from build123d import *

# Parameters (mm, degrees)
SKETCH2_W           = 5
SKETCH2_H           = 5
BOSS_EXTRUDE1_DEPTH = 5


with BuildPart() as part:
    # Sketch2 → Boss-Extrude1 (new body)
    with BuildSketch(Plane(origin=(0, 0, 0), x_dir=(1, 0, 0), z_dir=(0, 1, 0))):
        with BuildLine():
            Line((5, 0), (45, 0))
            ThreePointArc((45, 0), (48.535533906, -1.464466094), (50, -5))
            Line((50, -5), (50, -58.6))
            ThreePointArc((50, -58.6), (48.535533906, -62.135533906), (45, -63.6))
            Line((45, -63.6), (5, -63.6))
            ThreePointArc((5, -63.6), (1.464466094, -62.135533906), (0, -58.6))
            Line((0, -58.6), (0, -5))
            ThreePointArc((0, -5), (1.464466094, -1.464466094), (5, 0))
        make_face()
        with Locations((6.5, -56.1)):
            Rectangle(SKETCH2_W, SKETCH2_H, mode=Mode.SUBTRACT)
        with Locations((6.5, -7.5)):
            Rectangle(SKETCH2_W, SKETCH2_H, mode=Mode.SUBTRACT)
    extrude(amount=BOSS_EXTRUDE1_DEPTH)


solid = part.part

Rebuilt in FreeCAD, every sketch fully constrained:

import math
import FreeCAD as App
import Part
import Sketcher

V = App.Vector
Q = App.Units.Quantity


def add_polygon(sketch, points):
    """Adds a closed chain of lines whose ends are joined by coincident constraints."""
    first, n = sketch.GeometryCount, len(points)
    for a, b in zip(points, points[1:] + points[:1]):
        sketch.addGeometry(Part.LineSegment(App.Vector(*a, 0), App.Vector(*b, 0)), False)
    for i in range(n):
        sketch.addConstraint(Sketcher.Constraint("Coincident", first + i, 2, first + (i + 1) % n, 1))

doc = App.newDocument("Part")
body = doc.addObject("PartDesign::Body", "Body")

# Sketch on XZ plane
sketch1 = body.newObject("Sketcher::SketchObject", "Sketch")
sketch1.AttachmentSupport = (doc.getObject("XZ_Plane"), [""])
sketch1.MapMode = "FlatFace"
sketch1.addGeometry(Part.LineSegment(V(45, 0, 0), V(5, 0, 0)), False)  # 0
sketch1.addGeometry(Part.ArcOfCircle(Part.Circle(V(5, 5, 0), V(0, 0, 1), 5), math.radians(180), math.radians(270)), False)  # 1
sketch1.addGeometry(Part.LineSegment(V(0, 5, 0), V(0, 59, 0)), False)  # 2
sketch1.addGeometry(Part.ArcOfCircle(Part.Circle(V(5, 59, 0), V(0, 0, 1), 5), math.radians(90), math.radians(180)), False)  # 3
sketch1.addGeometry(Part.LineSegment(V(5, 64, 0), V(45, 64, 0)), False)  # 4
sketch1.addGeometry(Part.ArcOfCircle(Part.Circle(V(45, 59, 0), V(0, 0, 1), 5), math.radians(0), math.radians(90)), False)  # 5
sketch1.addGeometry(Part.LineSegment(V(50, 59, 0), V(50, 5, 0)), False)  # 6
sketch1.addGeometry(Part.ArcOfCircle(Part.Circle(V(45, 5, 0), V(0, 0, 1), 5), math.radians(-90), math.radians(0)), False)  # 7
add_polygon(sketch1, [(4, 59), (4, 54), (9, 54), (9, 59)])  # lines 8-11
add_polygon(sketch1, [(4, 10), (4, 5), (9, 5), (9, 10)])  # lines 12-15
sketch1.addConstraint(Sketcher.Constraint("Tangent", 0, 2, 1, 2))
sketch1.addConstraint(Sketcher.Constraint("Tangent", 1, 1, 2, 1))
sketch1.addConstraint(Sketcher.Constraint("Tangent", 2, 2, 3, 2))
sketch1.addConstraint(Sketcher.Constraint("Tangent", 3, 1, 4, 1))
sketch1.addConstraint(Sketcher.Constraint("Tangent", 4, 2, 5, 2))
sketch1.addConstraint(Sketcher.Constraint("Tangent", 5, 1, 6, 1))
sketch1.addConstraint(Sketcher.Constraint("Tangent", 6, 2, 7, 2))
sketch1.addConstraint(Sketcher.Constraint("Tangent", 7, 1, 0, 1))
sketch1.addConstraint(Sketcher.Constraint("Horizontal", 0))
sketch1.addConstraint(Sketcher.Constraint("Vertical", 2))
sketch1.addConstraint(Sketcher.Constraint("Horizontal", 4))
sketch1.addConstraint(Sketcher.Constraint("Vertical", 6))
sketch1.addConstraint(Sketcher.Constraint("Vertical", 8))
sketch1.addConstraint(Sketcher.Constraint("Horizontal", 9))
sketch1.addConstraint(Sketcher.Constraint("Vertical", 10))
sketch1.addConstraint(Sketcher.Constraint("Horizontal", 11))
sketch1.addConstraint(Sketcher.Constraint("Vertical", 12))
sketch1.addConstraint(Sketcher.Constraint("Horizontal", 13))
sketch1.addConstraint(Sketcher.Constraint("Vertical", 14))
sketch1.addConstraint(Sketcher.Constraint("Horizontal", 15))
sketch1.addConstraint(Sketcher.Constraint("Equal", 1, 3))
sketch1.addConstraint(Sketcher.Constraint("Equal", 3, 5))
sketch1.addConstraint(Sketcher.Constraint("Equal", 5, 7))
sketch1.addConstraint(Sketcher.Constraint("PointOnObject", 0, 2, -1))
sketch1.addConstraint(Sketcher.Constraint("PointOnObject", 1, 1, -2))
sketch1.addConstraint(Sketcher.Constraint("Horizontal", 5, 1, 10, 2))
sketch1.addConstraint(Sketcher.Constraint("Horizontal", 6, 2, 12, 2))
sketch1.addConstraint(Sketcher.Constraint("Vertical", 11, 2, 12, 2))
sketch1.addConstraint(Sketcher.Constraint("Vertical", 10, 2, 13, 2))
sketch1.addConstraint(Sketcher.Constraint("Equal", 15, 8))
sketch1.addConstraint(Sketcher.Constraint("Equal", 10, 12))
sketch1.addConstraint(Sketcher.Constraint("Radius", 1, Q("5 mm")))
sketch1.addConstraint(Sketcher.Constraint("DistanceX", 0, 2, 0, 1, Q("40 mm")))
sketch1.addConstraint(Sketcher.Constraint("DistanceX", 9, 1, 9, 2, Q("5 mm")))
sketch1.addConstraint(Sketcher.Constraint("DistanceY", 2, 1, 2, 2, Q("53.6 mm")))
sketch1.addConstraint(Sketcher.Constraint("DistanceX", -1, 1, 8, 2, Q("4 mm")))
pad1 = body.newObject("PartDesign::Pad", "Pad")
pad1.Profile = sketch1
pad1.Length = 5
pad1.Reversed = True

doc.recompute()
